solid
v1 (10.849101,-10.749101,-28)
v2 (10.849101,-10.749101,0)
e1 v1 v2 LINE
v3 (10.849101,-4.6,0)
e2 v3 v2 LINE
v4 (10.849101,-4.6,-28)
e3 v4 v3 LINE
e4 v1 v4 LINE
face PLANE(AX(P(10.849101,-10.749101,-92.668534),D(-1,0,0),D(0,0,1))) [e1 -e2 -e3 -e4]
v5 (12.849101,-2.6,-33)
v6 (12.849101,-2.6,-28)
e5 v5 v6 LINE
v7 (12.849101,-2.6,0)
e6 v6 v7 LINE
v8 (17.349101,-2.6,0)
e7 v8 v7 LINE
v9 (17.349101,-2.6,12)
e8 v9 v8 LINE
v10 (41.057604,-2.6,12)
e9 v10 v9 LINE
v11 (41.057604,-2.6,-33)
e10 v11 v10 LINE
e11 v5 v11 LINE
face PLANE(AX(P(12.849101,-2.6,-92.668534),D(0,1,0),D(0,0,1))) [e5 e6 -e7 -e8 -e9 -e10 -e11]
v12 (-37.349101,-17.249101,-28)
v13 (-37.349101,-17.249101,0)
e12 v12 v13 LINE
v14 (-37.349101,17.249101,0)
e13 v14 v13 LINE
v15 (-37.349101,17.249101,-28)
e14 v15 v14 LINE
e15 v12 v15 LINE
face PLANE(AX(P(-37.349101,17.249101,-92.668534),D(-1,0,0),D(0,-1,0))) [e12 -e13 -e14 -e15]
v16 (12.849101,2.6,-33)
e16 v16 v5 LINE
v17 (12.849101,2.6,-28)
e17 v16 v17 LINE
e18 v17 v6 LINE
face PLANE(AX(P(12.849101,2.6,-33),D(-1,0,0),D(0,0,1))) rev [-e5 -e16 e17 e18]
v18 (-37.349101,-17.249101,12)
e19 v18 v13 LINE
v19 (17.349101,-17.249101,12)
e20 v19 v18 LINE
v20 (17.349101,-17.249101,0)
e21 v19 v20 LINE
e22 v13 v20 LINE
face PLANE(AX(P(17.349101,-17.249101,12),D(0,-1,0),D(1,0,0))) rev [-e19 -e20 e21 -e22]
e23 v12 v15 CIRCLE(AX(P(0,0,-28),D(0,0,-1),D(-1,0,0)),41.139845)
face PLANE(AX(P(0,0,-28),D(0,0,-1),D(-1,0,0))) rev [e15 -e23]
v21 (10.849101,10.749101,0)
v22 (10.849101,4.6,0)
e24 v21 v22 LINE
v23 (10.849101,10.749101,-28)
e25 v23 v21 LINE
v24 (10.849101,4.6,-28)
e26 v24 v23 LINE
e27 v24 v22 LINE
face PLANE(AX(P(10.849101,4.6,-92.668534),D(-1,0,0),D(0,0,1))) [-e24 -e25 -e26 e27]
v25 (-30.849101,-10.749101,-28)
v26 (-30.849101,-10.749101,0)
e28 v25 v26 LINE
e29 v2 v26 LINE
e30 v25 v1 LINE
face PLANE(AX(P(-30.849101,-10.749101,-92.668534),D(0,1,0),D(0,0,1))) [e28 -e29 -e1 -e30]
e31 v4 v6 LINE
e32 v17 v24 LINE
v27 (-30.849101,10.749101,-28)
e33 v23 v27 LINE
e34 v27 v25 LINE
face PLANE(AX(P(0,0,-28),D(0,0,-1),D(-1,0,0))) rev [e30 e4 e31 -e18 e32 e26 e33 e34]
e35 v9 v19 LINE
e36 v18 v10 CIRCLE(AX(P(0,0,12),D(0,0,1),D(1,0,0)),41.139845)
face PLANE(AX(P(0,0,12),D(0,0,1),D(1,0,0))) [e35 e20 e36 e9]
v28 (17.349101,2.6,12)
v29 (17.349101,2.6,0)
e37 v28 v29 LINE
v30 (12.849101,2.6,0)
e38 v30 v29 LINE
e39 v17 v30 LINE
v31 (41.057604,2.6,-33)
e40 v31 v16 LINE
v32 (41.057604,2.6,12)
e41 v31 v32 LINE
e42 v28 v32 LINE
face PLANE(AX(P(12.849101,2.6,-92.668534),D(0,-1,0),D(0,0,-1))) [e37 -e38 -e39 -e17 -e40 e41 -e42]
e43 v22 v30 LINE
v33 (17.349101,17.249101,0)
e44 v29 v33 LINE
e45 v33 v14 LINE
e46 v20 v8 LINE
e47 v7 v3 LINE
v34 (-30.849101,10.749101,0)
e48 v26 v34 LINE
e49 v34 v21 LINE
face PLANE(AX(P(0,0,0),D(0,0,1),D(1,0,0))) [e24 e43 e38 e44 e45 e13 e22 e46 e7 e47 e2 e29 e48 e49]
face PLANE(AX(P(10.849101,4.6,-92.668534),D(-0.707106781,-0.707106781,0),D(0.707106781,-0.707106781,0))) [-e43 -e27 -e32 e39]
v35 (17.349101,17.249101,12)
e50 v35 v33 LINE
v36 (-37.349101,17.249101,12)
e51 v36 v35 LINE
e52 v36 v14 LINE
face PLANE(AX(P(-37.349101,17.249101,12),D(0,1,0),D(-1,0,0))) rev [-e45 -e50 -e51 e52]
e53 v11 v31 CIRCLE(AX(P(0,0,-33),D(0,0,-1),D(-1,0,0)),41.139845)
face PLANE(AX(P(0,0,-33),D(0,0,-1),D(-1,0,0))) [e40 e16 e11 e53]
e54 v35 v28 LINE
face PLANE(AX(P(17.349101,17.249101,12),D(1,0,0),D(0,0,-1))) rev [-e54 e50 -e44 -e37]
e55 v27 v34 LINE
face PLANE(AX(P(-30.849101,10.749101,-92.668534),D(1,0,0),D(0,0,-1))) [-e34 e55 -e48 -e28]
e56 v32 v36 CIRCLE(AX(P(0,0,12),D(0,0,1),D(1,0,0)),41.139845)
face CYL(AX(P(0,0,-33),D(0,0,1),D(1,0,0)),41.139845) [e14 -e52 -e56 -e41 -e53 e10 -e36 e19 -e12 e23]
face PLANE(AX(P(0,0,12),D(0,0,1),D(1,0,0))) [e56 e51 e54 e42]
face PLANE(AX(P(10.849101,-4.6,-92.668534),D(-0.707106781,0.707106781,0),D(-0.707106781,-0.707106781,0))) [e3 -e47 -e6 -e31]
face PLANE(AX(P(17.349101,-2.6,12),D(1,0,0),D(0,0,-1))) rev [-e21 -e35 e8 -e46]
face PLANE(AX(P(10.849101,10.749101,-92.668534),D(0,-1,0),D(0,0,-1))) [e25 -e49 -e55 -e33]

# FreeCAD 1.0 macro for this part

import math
import FreeCAD as App
import Part
import Sketcher

V = App.Vector
Q = App.Units.Quantity

doc = App.newDocument("Part")
body = doc.addObject("PartDesign::Body", "Body")

sketch1 = doc.addObject("Sketcher::SketchObject", "Sketch")
body.addObject(sketch1)
sketch1.AttachmentSupport = (doc.XY_Plane, [""])
sketch1.MapMode = "FlatFace"
sketch1.addGeometry(Part.LineSegment(V(10.8, 4.6, 0), V(12.8, 2.6, 0)), False)
sketch1.addGeometry(Part.LineSegment(V(12.8, 2.6, 0), V(17.3, 2.6, 0)), False)
sketch1.addGeometry(Part.LineSegment(V(17.3, 2.6, 0), V(17.3, 17.2, 0)), False)
sketch1.addGeometry(Part.LineSegment(V(17.3, 17.2, 0), V(-37.3, 17.2, 0)), False)
sketch1.addGeometry(Part.LineSegment(V(-37.3, 17.2, 0), V(-37.3, -17.2, 0)), False)
sketch1.addGeometry(Part.LineSegment(V(-37.3, -17.2, 0), V(17.3, -17.2, 0)), False)
sketch1.addGeometry(Part.LineSegment(V(17.3, -17.2, 0), V(17.3, -2.6, 0)), False)
sketch1.addGeometry(Part.LineSegment(V(17.3, -2.6, 0), V(12.8, -2.6, 0)), False)
sketch1.addGeometry(Part.LineSegment(V(12.8, -2.6, 0), V(10.8, -4.6, 0)), False)
sketch1.addGeometry(Part.LineSegment(V(10.8, -4.6, 0), V(10.8, -10.7, 0)), False)
sketch1.addGeometry(Part.LineSegment(V(10.8, -10.7, 0), V(-30.8, -10.7, 0)), False)
sketch1.addGeometry(Part.LineSegment(V(-30.8, -10.7, 0), V(-30.8, 10.7, 0)), False)
sketch1.addGeometry(Part.LineSegment(V(-30.8, 10.7, 0), V(10.8, 10.7, 0)), False)
sketch1.addGeometry(Part.LineSegment(V(10.8, 10.7, 0), V(10.8, 4.6, 0)), False)
sketch1.addConstraint(Sketcher.Constraint("Coincident", 0, 2, 1, 1))
sketch1.addConstraint(Sketcher.Constraint("Coincident", 1, 2, 2, 1))
sketch1.addConstraint(Sketcher.Constraint("Coincident", 2, 2, 3, 1))
sketch1.addConstraint(Sketcher.Constraint("Coincident", 3, 2, 4, 1))
sketch1.addConstraint(Sketcher.Constraint("Coincident", 4, 2, 5, 1))
sketch1.addConstraint(Sketcher.Constraint("Coincident", 5, 2, 6, 1))
sketch1.addConstraint(Sketcher.Constraint("Coincident", 6, 2, 7, 1))
sketch1.addConstraint(Sketcher.Constraint("Coincident", 7, 2, 8, 1))
sketch1.addConstraint(Sketcher.Constraint("Coincident", 8, 2, 9, 1))
sketch1.addConstraint(Sketcher.Constraint("Coincident", 9, 2, 10, 1))
sketch1.addConstraint(Sketcher.Constraint("Coincident", 10, 2, 11, 1))
sketch1.addConstraint(Sketcher.Constraint("Coincident", 11, 2, 12, 1))
sketch1.addConstraint(Sketcher.Constraint("Coincident", 12, 2, 13, 1))
sketch1.addConstraint(Sketcher.Constraint("Coincident", 13, 2, 0, 1))
sketch1.addConstraint(Sketcher.Constraint("Horizontal", 1))
sketch1.addConstraint(Sketcher.Constraint("Vertical", 2))
sketch1.addConstraint(Sketcher.Constraint("Horizontal", 3))
sketch1.addConstraint(Sketcher.Constraint("Vertical", 4))
sketch1.addConstraint(Sketcher.Constraint("Horizontal", 5))
sketch1.addConstraint(Sketcher.Constraint("Vertical", 6))
sketch1.addConstraint(Sketcher.Constraint("Horizontal", 7))
sketch1.addConstraint(Sketcher.Constraint("Vertical", 9))
sketch1.addConstraint(Sketcher.Constraint("Horizontal", 10))
sketch1.addConstraint(Sketcher.Constraint("Vertical", 11))
sketch1.addConstraint(Sketcher.Constraint("Horizontal", 12))
sketch1.addConstraint(Sketcher.Constraint("Vertical", 13))
sketch1.addConstraint(Sketcher.Constraint("Symmetric", 2, 2, 5, 2, -1))
sketch1.addConstraint(Sketcher.Constraint("Symmetric", 0, 2, 7, 2, -1))
sketch1.addConstraint(Sketcher.Constraint("Symmetric", 9, 2, 12, 2, -1))
sketch1.addConstraint(Sketcher.Constraint("Perpendicular", 0, 8))
sketch1.addConstraint(Sketcher.Constraint("Equal", 9, 13))
sketch1.addConstraint(Sketcher.Constraint("DistanceX", 1, 1, 1, 2, Q("4.5 mm")))
sketch1.addConstraint(Sketcher.Constraint("DistanceX", 8, 2, 7, 2, Q("2 mm")))
sketch1.addConstraint(Sketcher.Constraint("DistanceY", -1, 1, 0, 2, Q("2.6 mm")))
sketch1.addConstraint(Sketcher.Constraint("DistanceY", 5, 2, 9, 2, Q("6.5 mm")))
sketch1.addConstraint(Sketcher.Constraint("DistanceX", 4, 2, 10, 2, Q("6.5 mm")))
sketch1.addConstraint(Sketcher.Constraint("DistanceY", 2, 1, 2, 2, Q("14.649101 mm")))
sketch1.addConstraint(Sketcher.Constraint("DistanceX", -1, 1, 0, 2, Q("12.849101 mm")))
sketch1.addConstraint(Sketcher.Constraint("DistanceX", 3, 2, -1, 1, Q("37.349101 mm")))
pad1 = doc.addObject("PartDesign::Pad", "Pad")
body.addObject(pad1)
pad1.Profile = sketch1
pad1.Length = 28
pad1.Reversed = True

sketch2 = doc.addObject("Sketcher::SketchObject", "Sketch001")
body.addObject(sketch2)
sketch2.AttachmentSupport = (doc.XY_Plane, [""])
sketch2.MapMode = "FlatFace"
sketch2.AttachmentOffset = App.Placement(V(0, 0, -28), App.Rotation())
sketch2.addGeometry(Part.LineSegment(V(41, 3, 0), V(13, 3, 0)), False)
sketch2.addGeometry(Part.LineSegment(V(13, 3, 0), V(13, -3, 0)), False)
sketch2.addGeometry(Part.LineSegment(V(13, -3, 0), V(41, -3, 0)), False)
sketch2.addGeometry(Part.ArcOfCircle(Part.Circle(V(0, 0, 0), V(0, 0, 1), 41), math.radians(4), math.radians(356)), False)
sketch2.addConstraint(Sketcher.Constraint("Coincident", 0, 2, 1, 1))
sketch2.addConstraint(Sketcher.Constraint("Coincident", 1, 2, 2, 1))
sketch2.addConstraint(Sketcher.Constraint("Coincident", 2, 2, 3, 2))
sketch2.addConstraint(Sketcher.Constraint("Coincident", 3, 1, 0, 1))
sketch2.addConstraint(Sketcher.Constraint("Horizontal", 0))
sketch2.addConstraint(Sketcher.Constraint("Vertical", 1))
sketch2.addConstraint(Sketcher.Constraint("Horizontal", 2))
sketch2.addConstraint(Sketcher.Constraint("Coincident", 3, 3, -1, 1))
sketch2.addConstraint(Sketcher.Constraint("Vertical", 2, 2, 3, 1))
sketch2.addConstraint(Sketcher.Constraint("DistanceY", 1, 2, 1, 1, Q("5.2 mm")))
sketch2.addConstraint(Sketcher.Constraint("Radius", 3, Q("41.139845 mm")))
sketch2.addConstraint(Sketcher.Constraint("DistanceX", -1, 1, 0, 2, Q("12.849101 mm")))
pad2 = doc.addObject("PartDesign::Pad", "Pad001")
body.addObject(pad2)
pad2.Profile = sketch2
pad2.Length = 5
pad2.Reversed = True

sketch3 = doc.addObject("Sketcher::SketchObject", "Sketch002")
body.addObject(sketch3)
sketch3.AttachmentSupport = (doc.XY_Plane, [""])
sketch3.MapMode = "FlatFace"
sketch3.AttachmentOffset = App.Placement(V(0, 0, 12), App.Rotation())
sketch3.addGeometry(Part.LineSegment(V(-37, 17, 0), V(17, 17, 0)), False)
sketch3.addGeometry(Part.LineSegment(V(17, 17, 0), V(17, 3, 0)), False)
sketch3.addGeometry(Part.LineSegment(V(17, 3, 0), V(41, 3, 0)), False)
sketch3.addGeometry(Part.ArcOfCircle(Part.Circle(V(0, 0, 0), V(0, 0, 1), 41), math.radians(4), math.radians(155)), False)
sketch3.addGeometry(Part.LineSegment(V(41, -3, 0), V(17, -3, 0)), False)
sketch3.addGeometry(Part.LineSegment(V(17, -3, 0), V(17, -17, 0)), False)
sketch3.addGeometry(Part.LineSegment(V(17, -17, 0), V(-37, -17, 0)), False)
sketch3.addGeometry(Part.ArcOfCircle(Part.Circle(V(0, 0, 0), V(0, 0, 1), 41), math.radians(-155), math.radians(-4)), False)
sketch3.addConstraint(Sketcher.Constraint("Coincident", 0, 2, 1, 1))
sketch3.addConstraint(Sketcher.Constraint("Coincident", 1, 2, 2, 1))
sketch3.addConstraint(Sketcher.Constraint("Coincident", 2, 2, 3, 1))
sketch3.addConstraint(Sketcher.Constraint("Coincident", 3, 2, 0, 1))
sketch3.addConstraint(Sketcher.Constraint("Coincident", 4, 2, 5, 1))
sketch3.addConstraint(Sketcher.Constraint("Coincident", 5, 2, 6, 1))
sketch3.addConstraint(Sketcher.Constraint("Coincident", 6, 2, 7, 1))
sketch3.addConstraint(Sketcher.Constraint("Coincident", 7, 2, 4, 1))
sketch3.addConstraint(Sketcher.Constraint("Horizontal", 0))
sketch3.addConstraint(Sketcher.Constraint("Vertical", 1))
sketch3.addConstraint(Sketcher.Constraint("Horizontal", 2))
sketch3.addConstraint(Sketcher.Constraint("Horizontal", 4))
sketch3.addConstraint(Sketcher.Constraint("Vertical", 5))
sketch3.addConstraint(Sketcher.Constraint("Horizontal", 6))
sketch3.addConstraint(Sketcher.Constraint("Coincident", 3, 3, -1, 1))
sketch3.addConstraint(Sketcher.Constraint("Coincident", 7, 3, -1, 1))
sketch3.addConstraint(Sketcher.Constraint("Equal", 3, 7))
sketch3.addConstraint(Sketcher.Constraint("Symmetric", 1, 2, 4, 2, -1))
sketch3.addConstraint(Sketcher.Constraint("Vertical", 3, 2, 6, 2))
sketch3.addConstraint(Sketcher.Constraint("DistanceY", -1, 1, 1, 2, Q("2.6 mm")))
sketch3.addConstraint(Sketcher.Constraint("DistanceY", 1, 2, 1, 1, Q("14.649101 mm")))
sketch3.addConstraint(Sketcher.Constraint("Radius", 3, Q("41.139845 mm")))
sketch3.addConstraint(Sketcher.Constraint("DistanceX", -1, 1, 0, 2, Q("17.349101 mm")))
pad3 = doc.addObject("PartDesign::Pad", "Pad002")
body.addObject(pad3)
pad3.Profile = sketch3
pad3.Length = 40
pad3.Reversed = True

doc.recompute()
